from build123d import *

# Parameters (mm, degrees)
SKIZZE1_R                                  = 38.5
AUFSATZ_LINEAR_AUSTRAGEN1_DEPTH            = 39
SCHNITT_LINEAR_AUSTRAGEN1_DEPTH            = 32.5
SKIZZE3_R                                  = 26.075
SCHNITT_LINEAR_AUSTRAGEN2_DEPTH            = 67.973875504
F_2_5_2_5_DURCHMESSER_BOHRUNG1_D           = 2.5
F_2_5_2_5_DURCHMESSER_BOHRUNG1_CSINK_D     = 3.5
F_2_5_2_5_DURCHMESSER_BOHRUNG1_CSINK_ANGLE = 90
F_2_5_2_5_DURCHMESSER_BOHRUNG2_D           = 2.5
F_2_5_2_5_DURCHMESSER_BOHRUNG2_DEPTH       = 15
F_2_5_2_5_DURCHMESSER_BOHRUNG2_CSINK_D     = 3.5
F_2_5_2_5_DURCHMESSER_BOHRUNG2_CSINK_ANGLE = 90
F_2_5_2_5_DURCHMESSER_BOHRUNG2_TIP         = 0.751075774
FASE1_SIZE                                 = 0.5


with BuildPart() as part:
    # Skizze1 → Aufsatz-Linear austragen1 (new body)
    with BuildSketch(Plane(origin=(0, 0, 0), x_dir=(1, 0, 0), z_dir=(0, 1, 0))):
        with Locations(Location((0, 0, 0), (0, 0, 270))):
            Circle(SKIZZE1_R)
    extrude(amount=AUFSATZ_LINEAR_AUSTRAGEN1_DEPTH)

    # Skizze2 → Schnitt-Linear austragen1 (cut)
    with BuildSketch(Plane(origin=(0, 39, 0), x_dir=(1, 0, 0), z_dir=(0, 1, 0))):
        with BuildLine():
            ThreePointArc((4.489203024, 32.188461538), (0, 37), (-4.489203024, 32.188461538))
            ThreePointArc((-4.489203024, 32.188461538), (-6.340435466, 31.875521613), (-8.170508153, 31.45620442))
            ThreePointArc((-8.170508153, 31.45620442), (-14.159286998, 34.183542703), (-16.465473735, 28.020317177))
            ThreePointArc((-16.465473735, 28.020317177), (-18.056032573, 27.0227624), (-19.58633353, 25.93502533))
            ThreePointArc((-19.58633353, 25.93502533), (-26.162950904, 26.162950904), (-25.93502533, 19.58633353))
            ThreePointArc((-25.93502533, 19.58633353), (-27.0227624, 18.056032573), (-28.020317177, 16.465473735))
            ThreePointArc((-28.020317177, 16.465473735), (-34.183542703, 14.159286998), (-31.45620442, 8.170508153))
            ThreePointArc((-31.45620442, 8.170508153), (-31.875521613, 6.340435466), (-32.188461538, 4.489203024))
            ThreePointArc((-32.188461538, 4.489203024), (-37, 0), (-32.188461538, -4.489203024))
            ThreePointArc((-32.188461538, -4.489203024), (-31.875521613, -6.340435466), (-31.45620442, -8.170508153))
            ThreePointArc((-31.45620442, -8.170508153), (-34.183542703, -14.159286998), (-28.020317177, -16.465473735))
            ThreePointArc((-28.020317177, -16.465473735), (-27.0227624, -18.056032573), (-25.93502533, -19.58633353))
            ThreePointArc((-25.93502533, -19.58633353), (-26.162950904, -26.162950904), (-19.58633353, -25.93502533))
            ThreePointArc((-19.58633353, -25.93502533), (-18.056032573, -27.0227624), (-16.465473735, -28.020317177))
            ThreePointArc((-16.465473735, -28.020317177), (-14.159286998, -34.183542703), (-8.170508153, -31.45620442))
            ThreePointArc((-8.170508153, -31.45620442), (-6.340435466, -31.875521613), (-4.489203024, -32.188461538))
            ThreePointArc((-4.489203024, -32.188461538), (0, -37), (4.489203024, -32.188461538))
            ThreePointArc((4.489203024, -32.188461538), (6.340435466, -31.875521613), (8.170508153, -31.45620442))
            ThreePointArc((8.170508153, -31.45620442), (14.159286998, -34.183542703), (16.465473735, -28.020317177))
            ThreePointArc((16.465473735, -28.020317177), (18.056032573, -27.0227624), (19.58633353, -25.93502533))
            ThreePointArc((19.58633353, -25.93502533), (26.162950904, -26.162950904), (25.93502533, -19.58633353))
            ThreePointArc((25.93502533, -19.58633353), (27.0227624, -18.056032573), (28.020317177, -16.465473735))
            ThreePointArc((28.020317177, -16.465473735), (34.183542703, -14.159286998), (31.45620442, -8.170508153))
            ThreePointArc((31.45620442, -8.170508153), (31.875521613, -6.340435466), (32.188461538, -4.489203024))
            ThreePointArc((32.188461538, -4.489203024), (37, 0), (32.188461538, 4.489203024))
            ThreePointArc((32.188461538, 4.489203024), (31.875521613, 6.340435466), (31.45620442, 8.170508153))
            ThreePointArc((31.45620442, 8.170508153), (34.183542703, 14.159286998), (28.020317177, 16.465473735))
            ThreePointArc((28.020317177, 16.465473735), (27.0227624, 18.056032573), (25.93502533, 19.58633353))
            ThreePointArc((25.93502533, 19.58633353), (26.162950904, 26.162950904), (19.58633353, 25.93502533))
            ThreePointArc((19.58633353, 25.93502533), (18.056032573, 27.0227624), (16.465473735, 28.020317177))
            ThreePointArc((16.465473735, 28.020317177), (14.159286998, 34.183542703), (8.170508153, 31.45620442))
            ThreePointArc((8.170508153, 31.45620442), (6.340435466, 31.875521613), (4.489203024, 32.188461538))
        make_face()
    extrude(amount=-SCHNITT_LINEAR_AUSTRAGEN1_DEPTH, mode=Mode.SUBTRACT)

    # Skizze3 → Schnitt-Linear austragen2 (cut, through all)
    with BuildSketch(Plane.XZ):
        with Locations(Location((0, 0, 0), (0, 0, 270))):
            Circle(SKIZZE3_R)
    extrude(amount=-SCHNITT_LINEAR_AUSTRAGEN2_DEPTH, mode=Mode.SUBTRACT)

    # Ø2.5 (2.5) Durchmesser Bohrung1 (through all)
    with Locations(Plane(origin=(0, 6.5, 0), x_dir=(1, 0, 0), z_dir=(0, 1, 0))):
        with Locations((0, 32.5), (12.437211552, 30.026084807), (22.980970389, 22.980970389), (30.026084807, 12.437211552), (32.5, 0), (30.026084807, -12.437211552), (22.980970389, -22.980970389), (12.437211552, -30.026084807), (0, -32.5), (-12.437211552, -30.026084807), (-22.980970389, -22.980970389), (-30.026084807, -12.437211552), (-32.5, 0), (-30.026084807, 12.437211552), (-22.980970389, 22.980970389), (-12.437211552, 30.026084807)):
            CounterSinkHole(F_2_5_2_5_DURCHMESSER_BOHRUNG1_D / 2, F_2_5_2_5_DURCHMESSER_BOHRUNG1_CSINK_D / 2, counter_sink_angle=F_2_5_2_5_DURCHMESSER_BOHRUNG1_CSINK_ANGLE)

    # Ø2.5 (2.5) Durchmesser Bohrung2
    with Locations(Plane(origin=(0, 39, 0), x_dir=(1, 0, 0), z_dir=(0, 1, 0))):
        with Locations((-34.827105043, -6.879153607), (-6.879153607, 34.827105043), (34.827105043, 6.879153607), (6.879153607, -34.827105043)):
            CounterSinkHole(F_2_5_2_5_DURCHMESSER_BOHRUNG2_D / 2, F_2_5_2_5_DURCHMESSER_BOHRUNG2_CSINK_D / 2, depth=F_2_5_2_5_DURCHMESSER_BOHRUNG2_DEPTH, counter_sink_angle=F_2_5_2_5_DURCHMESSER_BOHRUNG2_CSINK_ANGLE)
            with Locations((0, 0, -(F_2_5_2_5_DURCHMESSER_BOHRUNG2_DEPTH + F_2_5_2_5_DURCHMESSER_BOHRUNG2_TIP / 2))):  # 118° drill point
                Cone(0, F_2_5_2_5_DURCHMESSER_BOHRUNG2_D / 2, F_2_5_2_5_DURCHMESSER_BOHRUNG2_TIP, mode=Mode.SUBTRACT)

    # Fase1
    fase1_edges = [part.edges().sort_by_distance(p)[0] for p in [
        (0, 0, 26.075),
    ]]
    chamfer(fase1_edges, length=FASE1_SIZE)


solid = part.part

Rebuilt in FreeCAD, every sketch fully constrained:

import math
import FreeCAD as App
import Part
import Sketcher
from FreeCAD import Vector
Q = App.Units.Quantity


def edges_at(feature, points):
    """Names of the edges that pass closest to the given points."""
    edges = feature.Shape.Edges
    near = lambda p: min(range(len(edges)), key=lambda i: edges[i].distToShape(Part.Vertex(*p))[0])
    return sorted({f"Edge{near(p) + 1}" for p in points})

doc = App.newDocument("Part")
body = doc.addObject("PartDesign::Body", "Body")

# Sketch on XZ plane
sketch1 = body.newObject("Sketcher::SketchObject", "Sketch")
sketch1.AttachmentSupport = (doc.getObject("XZ_Plane"), [""])
sketch1.MapMode = "FlatFace"
sketch1.addGeometry(Part.Circle(Vector(0, 0, 0), Vector(0, 0, 1), 38.5), False)
sketch1.addConstraint([
    Sketcher.Constraint("Coincident", 0, 3, -1, 1),
    Sketcher.Constraint("Diameter", 0, Q("77 mm")),
])
pad1 = body.newObject("PartDesign::Pad", "Pad")
pad1.Profile = sketch1
pad1.Length = 39
pad1.Reversed = True

# Sketch on XZ plane
sketch2 = body.newObject("Sketcher::SketchObject", "Sketch001")
sketch2.AttachmentSupport = (doc.getObject("XZ_Plane"), [""])
sketch2.MapMode = "FlatFace"
sketch2.AttachmentOffset = App.Placement(Vector(0, 0, -39), App.Rotation())
sketch2.addGeometry([
    Part.ArcOfCircle(Part.Circle(Vector(0, -32.5, 0), Vector(0, 0, 1), 4.5), math.radians(176.030194), math.radians(363.969806)),  # 0
    Part.ArcOfCircle(Part.Circle(Vector(0, 0, 0), Vector(0, 0, 1), 32.5), math.radians(-104.560387), math.radians(-97.939613)),  # 1
    Part.ArcOfCircle(Part.Circle(Vector(-12.437212, -30.026085, 0), Vector(0, 0, 1), 4.5), math.radians(153.530194), math.radians(341.469806)),  # 2
    Part.ArcOfCircle(Part.Circle(Vector(0, 0, 0), Vector(0, 0, 1), 32.5), math.radians(-127.060387), math.radians(-120.439613)),  # 3
    Part.ArcOfCircle(Part.Circle(Vector(-22.98097, -22.98097, 0), Vector(0, 0, 1), 4.5), math.radians(131.030194), math.radians(318.969806)),  # 4
    Part.ArcOfCircle(Part.Circle(Vector(0, 0, 0), Vector(0, 0, 1), 32.5), math.radians(-149.560387), math.radians(-142.939613)),  # 5
    Part.ArcOfCircle(Part.Circle(Vector(-30.026085, -12.437212, 0), Vector(0, 0, 1), 4.5), math.radians(108.530194), math.radians(296.469806)),  # 6
    Part.ArcOfCircle(Part.Circle(Vector(0, 0, 0), Vector(0, 0, 1), 32.5), math.radians(-172.060387), math.radians(-165.439613)),  # 7
    Part.ArcOfCircle(Part.Circle(Vector(-32.5, 0, 0), Vector(0, 0, 1), 4.5), math.radians(86.030194), math.radians(273.969806)),  # 8
    Part.ArcOfCircle(Part.Circle(Vector(0, 0, 0), Vector(0, 0, 1), 32.5), math.radians(165.439613), math.radians(172.060387)),  # 9
    Part.ArcOfCircle(Part.Circle(Vector(-30.026085, 12.437212, 0), Vector(0, 0, 1), 4.5), math.radians(63.530194), math.radians(251.469806)),  # 10
    Part.ArcOfCircle(Part.Circle(Vector(0, 0, 0), Vector(0, 0, 1), 32.5), math.radians(142.939613), math.radians(149.560387)),  # 11
    Part.ArcOfCircle(Part.Circle(Vector(-22.98097, 22.98097, 0), Vector(0, 0, 1), 4.5), math.radians(41.030194), math.radians(228.969806)),  # 12
    Part.ArcOfCircle(Part.Circle(Vector(0, 0, 0), Vector(0, 0, 1), 32.5), math.radians(120.439613), math.radians(127.060387)),  # 13
    Part.ArcOfCircle(Part.Circle(Vector(-12.437212, 30.026085, 0), Vector(0, 0, 1), 4.5), math.radians(18.530194), math.radians(206.469806)),  # 14
    Part.ArcOfCircle(Part.Circle(Vector(0, 0, 0), Vector(0, 0, 1), 32.5), math.radians(97.939613), math.radians(104.560387)),  # 15
    Part.ArcOfCircle(Part.Circle(Vector(0, 32.5, 0), Vector(0, 0, 1), 4.5), math.radians(-3.969806), math.radians(183.969806)),  # 16
    Part.ArcOfCircle(Part.Circle(Vector(0, 0, 0), Vector(0, 0, 1), 32.5), math.radians(75.439613), math.radians(82.060387)),  # 17
    Part.ArcOfCircle(Part.Circle(Vector(12.437212, 30.026085, 0), Vector(0, 0, 1), 4.5), math.radians(-26.469806), math.radians(161.469806)),  # 18
    Part.ArcOfCircle(Part.Circle(Vector(0, 0, 0), Vector(0, 0, 1), 32.5), math.radians(52.939613), math.radians(59.560387)),  # 19
    Part.ArcOfCircle(Part.Circle(Vector(22.98097, 22.98097, 0), Vector(0, 0, 1), 4.5), math.radians(-48.969806), math.radians(138.969806)),  # 20
    Part.ArcOfCircle(Part.Circle(Vector(0, 0, 0), Vector(0, 0, 1), 32.5), math.radians(30.439613), math.radians(37.060387)),  # 21
    Part.ArcOfCircle(Part.Circle(Vector(30.026085, 12.437212, 0), Vector(0, 0, 1), 4.5), math.radians(-71.469806), math.radians(116.469806)),  # 22
    Part.ArcOfCircle(Part.Circle(Vector(0, 0, 0), Vector(0, 0, 1), 32.5), math.radians(7.939613), math.radians(14.560387)),  # 23
    Part.ArcOfCircle(Part.Circle(Vector(32.5, 0, 0), Vector(0, 0, 1), 4.5), math.radians(-93.969806), math.radians(93.969806)),  # 24
    Part.ArcOfCircle(Part.Circle(Vector(0, 0, 0), Vector(0, 0, 1), 32.5), math.radians(-14.560387), math.radians(-7.939613)),  # 25
    Part.ArcOfCircle(Part.Circle(Vector(30.026085, -12.437212, 0), Vector(0, 0, 1), 4.5), math.radians(-116.469806), math.radians(71.469806)),  # 26
    Part.ArcOfCircle(Part.Circle(Vector(0, 0, 0), Vector(0, 0, 1), 32.5), math.radians(-37.060387), math.radians(-30.439613)),  # 27
    Part.ArcOfCircle(Part.Circle(Vector(22.98097, -22.98097, 0), Vector(0, 0, 1), 4.5), math.radians(-138.969806), math.radians(48.969806)),  # 28
    Part.ArcOfCircle(Part.Circle(Vector(0, 0, 0), Vector(0, 0, 1), 32.5), math.radians(-59.560387), math.radians(-52.939613)),  # 29
    Part.ArcOfCircle(Part.Circle(Vector(12.437212, -30.026085, 0), Vector(0, 0, 1), 4.5), math.radians(-161.469806), math.radians(26.469806)),  # 30
    Part.ArcOfCircle(Part.Circle(Vector(0, 0, 0), Vector(0, 0, 1), 32.5), math.radians(-82.060387), math.radians(-75.439613)),  # 31
], False)
sketch2.addConstraint([
    Sketcher.Constraint("Coincident", 0, 1, 1, 2),
    Sketcher.Constraint("Coincident", 1, 1, 2, 2),
    Sketcher.Constraint("Coincident", 2, 1, 3, 2),
    Sketcher.Constraint("Coincident", 3, 1, 4, 2),
    Sketcher.Constraint("Coincident", 4, 1, 5, 2),
    Sketcher.Constraint("Coincident", 5, 1, 6, 2),
    Sketcher.Constraint("Coincident", 6, 1, 7, 2),
    Sketcher.Constraint("Coincident", 7, 1, 8, 2),
    Sketcher.Constraint("Coincident", 8, 1, 9, 2),
    Sketcher.Constraint("Coincident", 9, 1, 10, 2),
    Sketcher.Constraint("Coincident", 10, 1, 11, 2),
    Sketcher.Constraint("Coincident", 11, 1, 12, 2),
    Sketcher.Constraint("Coincident", 12, 1, 13, 2),
    Sketcher.Constraint("Coincident", 13, 1, 14, 2),
    Sketcher.Constraint("Coincident", 14, 1, 15, 2),
    Sketcher.Constraint("Coincident", 15, 1, 16, 2),
    Sketcher.Constraint("Coincident", 16, 1, 17, 2),
    Sketcher.Constraint("Coincident", 17, 1, 18, 2),
    Sketcher.Constraint("Coincident", 18, 1, 19, 2),
    Sketcher.Constraint("Coincident", 19, 1, 20, 2),
    Sketcher.Constraint("Coincident", 20, 1, 21, 2),
    Sketcher.Constraint("Coincident", 21, 1, 22, 2),
    Sketcher.Constraint("Coincident", 22, 1, 23, 2),
    Sketcher.Constraint("Coincident", 23, 1, 24, 2),
    Sketcher.Constraint("Coincident", 24, 1, 25, 2),
    Sketcher.Constraint("Coincident", 25, 1, 26, 2),
    Sketcher.Constraint("Coincident", 26, 1, 27, 2),
    Sketcher.Constraint("Coincident", 27, 1, 28, 2),
    Sketcher.Constraint("Coincident", 28, 1, 29, 2),
    Sketcher.Constraint("Coincident", 29, 1, 30, 2),
    Sketcher.Constraint("Coincident", 30, 1, 31, 2),
    Sketcher.Constraint("Coincident", 31, 1, 0, 2),
    Sketcher.Constraint("Coincident", 1, 3, -1, 1),
    Sketcher.Constraint("Coincident", 3, 3, -1, 1),
    Sketcher.Constraint("Coincident", 5, 3, -1, 1),
    Sketcher.Constraint("Coincident", 7, 3, -1, 1),
    Sketcher.Constraint("Coincident", 9, 3, -1, 1),
    Sketcher.Constraint("Coincident", 11, 3, -1, 1),
    Sketcher.Constraint("Coincident", 13, 3, -1, 1),
    Sketcher.Constraint("Coincident", 15, 3, -1, 1),
    Sketcher.Constraint("Coincident", 17, 3, -1, 1),
    Sketcher.Constraint("Coincident", 19, 3, -1, 1),
    Sketcher.Constraint("Coincident", 21, 3, -1, 1),
    Sketcher.Constraint("Coincident", 23, 3, -1, 1),
    Sketcher.Constraint("Coincident", 25, 3, -1, 1),
    Sketcher.Constraint("Coincident", 27, 3, -1, 1),
    Sketcher.Constraint("Coincident", 29, 3, -1, 1),
    Sketcher.Constraint("Coincident", 31, 3, -1, 1),
    Sketcher.Constraint("Equal", 0, 2),
    Sketcher.Constraint("Equal", 1, 3),
    Sketcher.Constraint("Equal", 2, 4),
    Sketcher.Constraint("Equal", 3, 5),
    Sketcher.Constraint("Equal", 4, 6),
    Sketcher.Constraint("Equal", 5, 7),
    Sketcher.Constraint("Equal", 6, 8),
    Sketcher.Constraint("Equal", 7, 9),
    Sketcher.Constraint("Equal", 8, 10),
    Sketcher.Constraint("Equal", 9, 11),
    Sketcher.Constraint("Equal", 10, 12),
    Sketcher.Constraint("Equal", 11, 13),
    Sketcher.Constraint("Equal", 12, 14),
    Sketcher.Constraint("Equal", 13, 15),
    Sketcher.Constraint("Equal", 14, 16),
    Sketcher.Constraint("Equal", 15, 17),
    Sketcher.Constraint("Equal", 16, 18),
    Sketcher.Constraint("Equal", 17, 19),
    Sketcher.Constraint("Equal", 18, 20),
    Sketcher.Constraint("Equal", 19, 21),
    Sketcher.Constraint("Equal", 20, 22),
    Sketcher.Constraint("Equal", 21, 23),
    Sketcher.Constraint("Equal", 22, 24),
    Sketcher.Constraint("Equal", 23, 25),
    Sketcher.Constraint("Equal", 24, 26),
    Sketcher.Constraint("Equal", 25, 27),
    Sketcher.Constraint("Equal", 26, 28),
    Sketcher.Constraint("Equal", 27, 29),
    Sketcher.Constraint("Equal", 28, 30),
    Sketcher.Constraint("Equal", 29, 31),
    Sketcher.Constraint("Symmetric", 0, 3, 16, 3, -1, 1),
    Sketcher.Constraint("Symmetric", 2, 3, 18, 3, -1, 1),
    Sketcher.Constraint("Symmetric", 4, 3, 20, 3, -1, 1),
    Sketcher.Constraint("Symmetric", 6, 3, 22, 3, -1, 1),
    Sketcher.Constraint("Symmetric", 8, 3, 24, 3, -1, 1),
    Sketcher.Constraint("Symmetric", 10, 3, 26, 3, -1, 1),
    Sketcher.Constraint("Symmetric", 12, 3, 28, 3, -1, 1),
    Sketcher.Constraint("Symmetric", 14, 3, 30, 3, -1, 1),
    Sketcher.Constraint("Symmetric", 14, 3, 18, 3, -2),
    Sketcher.Constraint("Symmetric", 12, 3, 20, 3, -2),
    Sketcher.Constraint("Symmetric", 10, 3, 22, 3, -2),
    Sketcher.Constraint("PointOnObject", 0, 3, -2),
    Sketcher.Constraint("PointOnObject", 8, 3, -1),
    Sketcher.Constraint("Radius", 0, Q("4.5 mm")),
    Sketcher.Constraint("Radius", 1, Q("32.5 mm")),
    Sketcher.Constraint("DistanceY", 0, 3, -1, 1, Q("32.5 mm")),
    Sketcher.Constraint("DistanceX", 8, 3, -1, 1, Q("32.5 mm")),
    Sketcher.Constraint("DistanceX", 2, 3, -1, 1, Q("12.437212 mm")),
    Sketcher.Constraint("DistanceX", 4, 3, -1, 1, Q("22.98097 mm")),
    Sketcher.Constraint("DistanceY", 4, 3, -1, 1, Q("22.98097 mm")),
    Sketcher.Constraint("DistanceY", 6, 3, -1, 1, Q("12.437212 mm")),
    Sketcher.Constraint("DistanceX", 1, 1, -1, 1, Q("8.170508 mm")),
    Sketcher.Constraint("DistanceY", 6, 1, -1, 1, Q("8.170508 mm")),
])
pocket1 = body.newObject("PartDesign::Pocket", "Pocket")
pocket1.Profile = sketch2
pocket1.Length = 32.5
pocket1.Reversed = True

# Sketch on XZ plane
sketch3 = body.newObject("Sketcher::SketchObject", "Sketch002")
sketch3.AttachmentSupport = (doc.getObject("XZ_Plane"), [""])
sketch3.MapMode = "FlatFace"
sketch3.addGeometry(Part.Circle(Vector(0, 0, 0), Vector(0, 0, 1), 26.075), False)
sketch3.addConstraint([
    Sketcher.Constraint("Coincident", 0, 3, -1, 1),
    Sketcher.Constraint("Diameter", 0, Q("52.15 mm")),
])
pocket2 = body.newObject("PartDesign::Pocket", "Pocket001")
pocket2.Profile = sketch3
pocket2.Type = "ThroughAll"

# Sketch on XZ plane
sketch4 = body.newObject("Sketcher::SketchObject", "Sketch003")
sketch4.AttachmentSupport = (doc.getObject("XZ_Plane"), [""])
sketch4.MapMode = "FlatFace"
sketch4.AttachmentOffset = App.Placement(Vector(0, 0, -6.5), App.Rotation())
sketch4.addGeometry([
    Part.Circle(Vector(0, -32.5, 0), Vector(0, 0, 1), 1.25),  # 0
    Part.Circle(Vector(12.437212, -30.026085, 0), Vector(0, 0, 1), 1.25),  # 1
    Part.Circle(Vector(22.98097, -22.98097, 0), Vector(0, 0, 1), 1.25),  # 2
    Part.Circle(Vector(30.026085, -12.437212, 0), Vector(0, 0, 1), 1.25),  # 3
    Part.Circle(Vector(32.5, 0, 0), Vector(0, 0, 1), 1.25),  # 4
    Part.Circle(Vector(30.026085, 12.437212, 0), Vector(0, 0, 1), 1.25),  # 5
    Part.Circle(Vector(22.98097, 22.98097, 0), Vector(0, 0, 1), 1.25),  # 6
    Part.Circle(Vector(12.437212, 30.026085, 0), Vector(0, 0, 1), 1.25),  # 7
    Part.Circle(Vector(0, 32.5, 0), Vector(0, 0, 1), 1.25),  # 8
    Part.Circle(Vector(-12.437212, 30.026085, 0), Vector(0, 0, 1), 1.25),  # 9
    Part.Circle(Vector(-22.98097, 22.98097, 0), Vector(0, 0, 1), 1.25),  # 10
    Part.Circle(Vector(-30.026085, 12.437212, 0), Vector(0, 0, 1), 1.25),  # 11
    Part.Circle(Vector(-32.5, 0, 0), Vector(0, 0, 1), 1.25),  # 12
    Part.Circle(Vector(-30.026085, -12.437212, 0), Vector(0, 0, 1), 1.25),  # 13
    Part.Circle(Vector(-22.98097, -22.98097, 0), Vector(0, 0, 1), 1.25),  # 14
    Part.Circle(Vector(-12.437212, -30.026085, 0), Vector(0, 0, 1), 1.25),  # 15
], False)
sketch4.addConstraint([
    Sketcher.Constraint("Equal", 0, 1),
    Sketcher.Constraint("Equal", 1, 2),
    Sketcher.Constraint("Equal", 2, 3),
    Sketcher.Constraint("Equal", 3, 4),
    Sketcher.Constraint("Equal", 4, 5),
    Sketcher.Constraint("Equal", 5, 6),
    Sketcher.Constraint("Equal", 6, 7),
    Sketcher.Constraint("Equal", 7, 8),
    Sketcher.Constraint("Equal", 8, 9),
    Sketcher.Constraint("Equal", 9, 10),
    Sketcher.Constraint("Equal", 10, 11),
    Sketcher.Constraint("Equal", 11, 12),
    Sketcher.Constraint("Equal", 12, 13),
    Sketcher.Constraint("Equal", 13, 14),
    Sketcher.Constraint("Equal", 14, 15),
    Sketcher.Constraint("Symmetric", 0, 3, 8, 3, -1, 1),
    Sketcher.Constraint("Symmetric", 1, 3, 9, 3, -1, 1),
    Sketcher.Constraint("Symmetric", 2, 3, 10, 3, -1, 1),
    Sketcher.Constraint("Symmetric", 3, 3, 11, 3, -1, 1),
    Sketcher.Constraint("Symmetric", 4, 3, 12, 3, -1, 1),
    Sketcher.Constraint("Symmetric", 5, 3, 13, 3, -1, 1),
    Sketcher.Constraint("Symmetric", 6, 3, 14, 3, -1, 1),
    Sketcher.Constraint("Symmetric", 7, 3, 15, 3, -1, 1),
    Sketcher.Constraint("Symmetric", 7, 3, 9, 3, -2),
    Sketcher.Constraint("Symmetric", 6, 3, 10, 3, -2),
    Sketcher.Constraint("Symmetric", 5, 3, 11, 3, -2),
    Sketcher.Constraint("PointOnObject", 0, 3, -2),
    Sketcher.Constraint("PointOnObject", 4, 3, -1),
    Sketcher.Constraint("Diameter", 0, Q("2.5 mm")),
    Sketcher.Constraint("DistanceY", 0, 3, -1, 1, Q("32.5 mm")),
    Sketcher.Constraint("DistanceX", -1, 1, 4, 3, Q("32.5 mm")),
    Sketcher.Constraint("DistanceX", -1, 1, 1, 3, Q("12.437212 mm")),
    Sketcher.Constraint("DistanceX", -1, 1, 2, 3, Q("22.98097 mm")),
    Sketcher.Constraint("DistanceY", 2, 3, -1, 1, Q("22.98097 mm")),
    Sketcher.Constraint("DistanceY", 3, 3, -1, 1, Q("12.437212 mm")),
    Sketcher.Constraint("DistanceY", 1, 3, -1, 1, Q("30.026085 mm")),
    Sketcher.Constraint("DistanceX", -1, 1, 3, 3, Q("30.026085 mm")),
])
doc.recompute()
hole = body.newObject("PartDesign::Hole", "Hole")
hole.Profile = sketch4
hole.ThreadType = "None"
hole.Diameter = 2.5
hole.DepthType = "ThroughAll"
hole.HoleCutType = "Countersink"
hole.HoleCutDiameter = 3.5
hole.HoleCutCountersinkAngle = 90
hole.Reversed = True

# Sketch on XZ plane
sketch5 = body.newObject("Sketcher::SketchObject", "Sketch004")
sketch5.AttachmentSupport = (doc.getObject("XZ_Plane"), [""])
sketch5.MapMode = "FlatFace"
sketch5.AttachmentOffset = App.Placement(Vector(0, 0, -39), App.Rotation())
sketch5.addGeometry([
    Part.Circle(Vector(-34.827105, 6.879154, 0), Vector(0, 0, 1), 1.25),
    Part.Circle(Vector(-6.879154, -34.827105, 0), Vector(0, 0, 1), 1.25),
    Part.Circle(Vector(34.827105, -6.879154, 0), Vector(0, 0, 1), 1.25),
    Part.Circle(Vector(6.879154, 34.827105, 0), Vector(0, 0, 1), 1.25),
], False)
sketch5.addConstraint([
    Sketcher.Constraint("Equal", 0, 1),
    Sketcher.Constraint("Equal", 1, 2),
    Sketcher.Constraint("Equal", 2, 3),
    Sketcher.Constraint("Symmetric", 0, 3, 2, 3, -1, 1),
    Sketcher.Constraint("Symmetric", 1, 3, 3, 3, -1, 1),
    Sketcher.Constraint("Diameter", 0, Q("2.5 mm")),
    Sketcher.Constraint("DistanceX", 0, 3, 1, 3, Q("27.947951 mm")),
    Sketcher.Constraint("DistanceY", 1, 3, 0, 3, Q("41.706259 mm")),
    Sketcher.Constraint("DistanceX", 1, 3, 2, 3, Q("41.706259 mm")),
    Sketcher.Constraint("DistanceY", 1, 3, 2, 3, Q("27.947951 mm")),
])
doc.recompute()
hole2 = body.newObject("PartDesign::Hole", "Hole001")
hole2.Profile = sketch5
hole2.ThreadType = "None"
hole2.Diameter = 2.5
hole2.DepthType = "Dimension"
hole2.Depth = 15
hole2.DrillPoint = "Angled"
hole2.DrillPointAngle = 118
hole2.HoleCutType = "Countersink"
hole2.HoleCutDiameter = 3.5
hole2.HoleCutCountersinkAngle = 90
hole2.Reversed = True
doc.recompute()

chamfer = body.newObject("PartDesign::Chamfer", "Chamfer")
chamfer.Base = (hole2, edges_at(hole2, [(0, 0, 26.075)]))
chamfer.Size = 0.5

doc.recompute()
